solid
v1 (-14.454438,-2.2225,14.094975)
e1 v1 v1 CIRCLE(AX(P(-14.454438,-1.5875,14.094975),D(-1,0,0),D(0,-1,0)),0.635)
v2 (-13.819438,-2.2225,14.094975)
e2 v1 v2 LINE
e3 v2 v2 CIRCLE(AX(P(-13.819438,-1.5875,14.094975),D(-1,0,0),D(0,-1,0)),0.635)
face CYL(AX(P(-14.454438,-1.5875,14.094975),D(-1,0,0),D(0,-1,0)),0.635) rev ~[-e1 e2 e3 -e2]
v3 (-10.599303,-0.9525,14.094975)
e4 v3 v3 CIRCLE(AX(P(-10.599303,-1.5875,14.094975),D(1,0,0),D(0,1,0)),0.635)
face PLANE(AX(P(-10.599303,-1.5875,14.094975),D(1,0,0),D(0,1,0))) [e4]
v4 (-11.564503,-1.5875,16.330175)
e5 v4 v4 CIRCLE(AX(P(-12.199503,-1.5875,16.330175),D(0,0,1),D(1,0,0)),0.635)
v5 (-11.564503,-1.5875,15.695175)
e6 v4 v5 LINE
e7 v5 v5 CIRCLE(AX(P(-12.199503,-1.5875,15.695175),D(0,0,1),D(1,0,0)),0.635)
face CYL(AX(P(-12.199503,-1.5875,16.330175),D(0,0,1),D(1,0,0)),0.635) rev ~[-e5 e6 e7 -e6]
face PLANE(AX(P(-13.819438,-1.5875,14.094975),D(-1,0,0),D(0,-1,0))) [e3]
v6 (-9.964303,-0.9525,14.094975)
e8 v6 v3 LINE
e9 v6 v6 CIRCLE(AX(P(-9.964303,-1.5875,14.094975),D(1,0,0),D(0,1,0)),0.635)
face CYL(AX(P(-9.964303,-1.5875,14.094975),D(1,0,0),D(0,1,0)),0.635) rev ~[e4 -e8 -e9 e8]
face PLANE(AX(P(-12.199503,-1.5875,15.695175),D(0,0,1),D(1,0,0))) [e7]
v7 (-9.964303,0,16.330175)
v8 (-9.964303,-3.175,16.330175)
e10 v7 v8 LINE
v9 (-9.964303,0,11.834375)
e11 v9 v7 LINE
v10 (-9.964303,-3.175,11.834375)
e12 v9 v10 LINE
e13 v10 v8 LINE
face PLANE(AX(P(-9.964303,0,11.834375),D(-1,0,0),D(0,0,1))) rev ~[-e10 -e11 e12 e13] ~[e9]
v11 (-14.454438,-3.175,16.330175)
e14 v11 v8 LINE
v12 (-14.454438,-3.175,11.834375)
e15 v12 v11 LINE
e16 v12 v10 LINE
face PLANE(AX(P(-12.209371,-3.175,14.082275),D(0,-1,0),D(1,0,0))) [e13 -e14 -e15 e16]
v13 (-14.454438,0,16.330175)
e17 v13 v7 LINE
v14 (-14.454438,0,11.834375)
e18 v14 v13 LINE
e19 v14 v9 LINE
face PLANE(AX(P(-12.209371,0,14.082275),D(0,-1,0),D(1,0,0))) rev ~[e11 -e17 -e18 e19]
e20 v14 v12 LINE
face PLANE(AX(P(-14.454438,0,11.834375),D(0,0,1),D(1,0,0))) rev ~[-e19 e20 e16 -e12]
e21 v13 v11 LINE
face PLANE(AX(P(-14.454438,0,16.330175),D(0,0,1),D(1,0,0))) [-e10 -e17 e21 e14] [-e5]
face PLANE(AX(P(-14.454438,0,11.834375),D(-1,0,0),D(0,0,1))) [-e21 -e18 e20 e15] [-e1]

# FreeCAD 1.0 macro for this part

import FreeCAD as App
import Part
import Sketcher
from FreeCAD import Vector
Q = App.Units.Quantity


def add_polygon(sketch, points):
    """Adds a closed chain of lines whose ends are joined by coincident constraints."""
    first, n = sketch.GeometryCount, len(points)
    for a, b in zip(points, points[1:] + points[:1]):
        sketch.addGeometry(Part.LineSegment(App.Vector(*a, 0), App.Vector(*b, 0)), False)
    for i in range(n):
        sketch.addConstraint(Sketcher.Constraint("Coincident", first + i, 2, first + (i + 1) % n, 1))

doc = App.newDocument("Part")
body = doc.addObject("PartDesign::Body", "Body")

# Sketch on XZ plane
sketch1 = body.newObject("Sketcher::SketchObject", "Sketch")
sketch1.AttachmentSupport = (doc.getObject("XZ_Plane"), [""])
sketch1.MapMode = "FlatFace"
add_polygon(sketch1, [(-14.5, 16.3), (-14.5, 11.8), (-10, 11.8), (-10, 16.3)])  # lines 0-3
sketch1.addConstraint(Sketcher.Constraint("Vertical", 0))
sketch1.addConstraint(Sketcher.Constraint("Horizontal", 1))
sketch1.addConstraint(Sketcher.Constraint("Vertical", 2))
sketch1.addConstraint(Sketcher.Constraint("Horizontal", 3))
sketch1.addConstraint(Sketcher.Constraint("DistanceY", 0, 2, 0, 1, Q("0.177 in")))
sketch1.addConstraint(Sketcher.Constraint("DistanceX", 1, 1, 1, 2, Q("4.490136 mm")))
sketch1.addConstraint(Sketcher.Constraint("DistanceX", 0, 2, -1, 1, Q("14.454438 mm")))
sketch1.addConstraint(Sketcher.Constraint("DistanceY", -1, 1, 0, 2, Q("11.834375 mm")))
pad1 = body.newObject("PartDesign::Pad", "Pad")
pad1.Profile = sketch1
pad1.Length = Q("0.125 in")

# Sketch on YZ plane
sketch2 = body.newObject("Sketcher::SketchObject", "Sketch001")
sketch2.AttachmentSupport = (doc.getObject("YZ_Plane"), [""])
sketch2.MapMode = "FlatFace"
sketch2.AttachmentOffset = App.Placement(Vector(0, 0, -9.964303), App.Rotation())
sketch2.addGeometry(Part.Circle(Vector(-1.6, 14.1, 0), Vector(0, 0, 1), 0.6), False)
sketch2.addConstraint(Sketcher.Constraint("Diameter", 0, Q("0.05 in")))
sketch2.addConstraint(Sketcher.Constraint("DistanceX", 0, 3, -1, 1, Q("0.0625 in")))
sketch2.addConstraint(Sketcher.Constraint("DistanceY", -1, 1, 0, 3, Q("14.094975 mm")))
pocket1 = body.newObject("PartDesign::Pocket", "Pocket")
pocket1.Profile = sketch2
pocket1.Length = Q("0.025 in")

# Sketch on YZ plane
sketch3 = body.newObject("Sketcher::SketchObject", "Sketch002")
sketch3.AttachmentSupport = (doc.getObject("YZ_Plane"), [""])
sketch3.MapMode = "FlatFace"
sketch3.AttachmentOffset = App.Placement(Vector(0, 0, -14.454438), App.Rotation())
sketch3.addGeometry(Part.Circle(Vector(-1.6, 14.1, 0), Vector(0, 0, 1), 0.6), False)
sketch3.addConstraint(Sketcher.Constraint("Diameter", 0, Q("0.05 in")))
sketch3.addConstraint(Sketcher.Constraint("DistanceX", 0, 3, -1, 1, Q("0.0625 in")))
sketch3.addConstraint(Sketcher.Constraint("DistanceY", -1, 1, 0, 3, Q("14.094975 mm")))
pocket2 = body.newObject("PartDesign::Pocket", "Pocket001")
pocket2.Profile = sketch3
pocket2.Length = Q("0.025 in")
pocket2.Reversed = True

# Sketch on XY plane
sketch4 = body.newObject("Sketcher::SketchObject", "Sketch003")
sketch4.AttachmentSupport = (doc.getObject("XY_Plane"), [""])
sketch4.MapMode = "FlatFace"
sketch4.AttachmentOffset = App.Placement(Vector(0, 0, 16.330175), App.Rotation())
sketch4.addGeometry(Part.Circle(Vector(-12.2, -1.6, 0), Vector(0, 0, 1), 0.6), False)
sketch4.addConstraint(Sketcher.Constraint("Diameter", 0, Q("0.05 in")))
sketch4.addConstraint(Sketcher.Constraint("DistanceY", 0, 3, -1, 1, Q("0.0625 in")))
sketch4.addConstraint(Sketcher.Constraint("DistanceX", 0, 3, -1, 1, Q("12.199503 mm")))
pocket3 = body.newObject("PartDesign::Pocket", "Pocket002")
pocket3.Profile = sketch4
pocket3.Length = Q("0.025 in")

doc.recompute()
